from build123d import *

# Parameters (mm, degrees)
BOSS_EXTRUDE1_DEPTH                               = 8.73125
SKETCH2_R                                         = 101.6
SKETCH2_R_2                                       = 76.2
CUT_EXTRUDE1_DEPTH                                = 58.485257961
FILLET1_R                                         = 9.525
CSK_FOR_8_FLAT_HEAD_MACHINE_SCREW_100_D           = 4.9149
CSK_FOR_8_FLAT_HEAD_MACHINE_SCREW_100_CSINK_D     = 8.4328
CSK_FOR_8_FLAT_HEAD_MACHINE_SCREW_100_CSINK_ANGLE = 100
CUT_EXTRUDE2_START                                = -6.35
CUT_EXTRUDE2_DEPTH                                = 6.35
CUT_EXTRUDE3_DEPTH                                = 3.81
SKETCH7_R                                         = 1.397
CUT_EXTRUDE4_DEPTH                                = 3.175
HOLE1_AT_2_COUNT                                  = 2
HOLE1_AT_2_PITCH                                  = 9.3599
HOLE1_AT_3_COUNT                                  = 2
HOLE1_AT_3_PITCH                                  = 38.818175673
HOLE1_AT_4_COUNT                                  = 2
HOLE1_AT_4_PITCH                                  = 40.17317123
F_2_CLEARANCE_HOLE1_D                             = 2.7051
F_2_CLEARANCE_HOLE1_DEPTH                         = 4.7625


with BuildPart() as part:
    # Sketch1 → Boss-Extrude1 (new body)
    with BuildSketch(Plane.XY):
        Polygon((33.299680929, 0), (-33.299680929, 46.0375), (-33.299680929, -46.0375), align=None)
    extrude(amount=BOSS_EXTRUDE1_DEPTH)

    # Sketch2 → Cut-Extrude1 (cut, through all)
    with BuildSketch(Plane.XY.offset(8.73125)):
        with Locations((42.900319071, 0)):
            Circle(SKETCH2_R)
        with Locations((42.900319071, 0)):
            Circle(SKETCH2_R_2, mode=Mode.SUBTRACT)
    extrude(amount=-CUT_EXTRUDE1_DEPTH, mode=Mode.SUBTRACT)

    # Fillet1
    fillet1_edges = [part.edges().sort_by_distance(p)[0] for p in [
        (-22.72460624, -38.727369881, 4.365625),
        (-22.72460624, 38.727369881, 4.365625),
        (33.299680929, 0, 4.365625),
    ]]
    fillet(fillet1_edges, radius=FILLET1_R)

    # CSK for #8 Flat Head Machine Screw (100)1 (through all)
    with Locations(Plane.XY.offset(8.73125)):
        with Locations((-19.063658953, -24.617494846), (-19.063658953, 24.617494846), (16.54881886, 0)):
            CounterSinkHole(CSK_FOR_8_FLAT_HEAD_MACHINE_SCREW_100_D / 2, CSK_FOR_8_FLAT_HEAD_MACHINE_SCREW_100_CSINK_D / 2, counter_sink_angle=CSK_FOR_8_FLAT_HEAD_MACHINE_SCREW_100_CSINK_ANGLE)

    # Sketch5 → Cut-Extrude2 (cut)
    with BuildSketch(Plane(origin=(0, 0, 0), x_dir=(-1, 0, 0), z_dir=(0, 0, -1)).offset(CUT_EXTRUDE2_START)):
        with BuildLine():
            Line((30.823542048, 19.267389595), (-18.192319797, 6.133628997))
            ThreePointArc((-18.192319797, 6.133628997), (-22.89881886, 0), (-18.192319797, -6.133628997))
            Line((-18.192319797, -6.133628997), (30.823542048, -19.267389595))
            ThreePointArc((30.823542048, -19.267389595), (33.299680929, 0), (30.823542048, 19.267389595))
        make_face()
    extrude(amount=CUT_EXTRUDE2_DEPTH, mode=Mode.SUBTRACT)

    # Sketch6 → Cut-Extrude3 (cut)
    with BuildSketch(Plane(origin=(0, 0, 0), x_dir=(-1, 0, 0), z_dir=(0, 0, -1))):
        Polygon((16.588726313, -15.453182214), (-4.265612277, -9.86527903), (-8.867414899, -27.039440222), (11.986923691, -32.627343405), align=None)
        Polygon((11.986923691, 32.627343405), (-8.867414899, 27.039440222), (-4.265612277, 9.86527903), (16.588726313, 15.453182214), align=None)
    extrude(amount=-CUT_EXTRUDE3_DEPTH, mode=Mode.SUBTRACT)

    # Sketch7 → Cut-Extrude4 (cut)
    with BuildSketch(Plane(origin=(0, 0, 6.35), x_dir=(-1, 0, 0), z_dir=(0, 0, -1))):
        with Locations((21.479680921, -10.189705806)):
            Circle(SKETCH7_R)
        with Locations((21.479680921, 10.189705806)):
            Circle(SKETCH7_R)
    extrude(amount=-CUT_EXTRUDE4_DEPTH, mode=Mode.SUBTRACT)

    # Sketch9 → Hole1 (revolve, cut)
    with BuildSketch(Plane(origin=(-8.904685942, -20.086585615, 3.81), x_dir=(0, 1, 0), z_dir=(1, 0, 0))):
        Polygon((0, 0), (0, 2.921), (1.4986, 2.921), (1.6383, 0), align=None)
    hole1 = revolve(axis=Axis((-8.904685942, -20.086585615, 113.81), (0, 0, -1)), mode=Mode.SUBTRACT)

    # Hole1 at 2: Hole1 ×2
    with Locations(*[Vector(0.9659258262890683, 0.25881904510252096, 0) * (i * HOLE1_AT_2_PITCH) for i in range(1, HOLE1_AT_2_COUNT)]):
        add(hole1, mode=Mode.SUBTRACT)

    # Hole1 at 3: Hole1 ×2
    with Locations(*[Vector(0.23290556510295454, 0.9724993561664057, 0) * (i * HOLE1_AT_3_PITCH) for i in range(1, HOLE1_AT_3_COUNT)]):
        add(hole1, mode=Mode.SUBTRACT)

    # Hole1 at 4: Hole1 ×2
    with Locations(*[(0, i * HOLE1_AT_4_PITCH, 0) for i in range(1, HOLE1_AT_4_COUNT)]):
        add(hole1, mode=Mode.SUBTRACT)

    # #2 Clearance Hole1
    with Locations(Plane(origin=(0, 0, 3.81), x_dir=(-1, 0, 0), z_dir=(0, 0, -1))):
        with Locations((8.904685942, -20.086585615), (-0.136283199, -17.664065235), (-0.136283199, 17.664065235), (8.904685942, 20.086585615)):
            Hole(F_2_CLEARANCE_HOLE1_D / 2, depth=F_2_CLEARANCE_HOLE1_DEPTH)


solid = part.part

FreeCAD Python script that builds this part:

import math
import FreeCAD as App
import Part
import Sketcher
Q = App.Units.Quantity


def edges_at(feature, points):
    """Names of the edges that pass closest to the given points."""
    edges = feature.Shape.Edges
    near = lambda p: min(range(len(edges)), key=lambda i: edges[i].distToShape(Part.Vertex(*p))[0])
    return sorted({f"Edge{near(p) + 1}" for p in points})

doc = App.newDocument("Part")
body = doc.addObject("PartDesign::Body", "Body")

# Sketch on XY plane
sketch1 = body.newObject("Sketcher::SketchObject", "Sketch")
sketch1.AttachmentSupport = (doc.getObject("XY_Plane"), [""])
sketch1.MapMode = "FlatFace"
sketch1.addGeometry(Part.LineSegment(App.Vector(33, 0, 0), App.Vector(-33, 46, 0)), False)
sketch1.addGeometry(Part.LineSegment(App.Vector(-33, 46, 0), App.Vector(-33, -46, 0)), False)
sketch1.addGeometry(Part.LineSegment(App.Vector(-33, -46, 0), App.Vector(33, 0, 0)), False)
sketch1.addConstraint(Sketcher.Constraint("Coincident", 0, 2, 1, 1))
sketch1.addConstraint(Sketcher.Constraint("Coincident", 1, 2, 2, 1))
sketch1.addConstraint(Sketcher.Constraint("Coincident", 2, 2, 0, 1))
sketch1.addConstraint(Sketcher.Constraint("Vertical", 1))
sketch1.addConstraint(Sketcher.Constraint("PointOnObject", 2, 2, -1))
sketch1.addConstraint(Sketcher.Constraint("Equal", 0, 2))
sketch1.addConstraint(Sketcher.Constraint("DistanceY", 1, 2, 1, 1, Q("3.625 in")))
sketch1.addConstraint(Sketcher.Constraint("Distance", 0, Q("3.1875 in")))
sketch1.addConstraint(Sketcher.Constraint("DistanceX", 0, 2, -1, 1, Q("33.299681 mm")))
pad1 = body.newObject("PartDesign::Pad", "Pad")
pad1.Profile = sketch1
pad1.Length = Q("0.34375 in")

# Sketch on XY plane
sketch2 = body.newObject("Sketcher::SketchObject", "Sketch001")
sketch2.AttachmentSupport = (doc.getObject("XY_Plane"), [""])
sketch2.MapMode = "FlatFace"
sketch2.AttachmentOffset = App.Placement(App.Vector(0, 0, 0.34375 * 25.4), App.Rotation())
sketch2.addGeometry(Part.Circle(App.Vector(43, 0, 0), App.Vector(0, 0, 1), 102), False)
sketch2.addGeometry(Part.Circle(App.Vector(43, 0, 0), App.Vector(0, 0, 1), 76), False)
sketch2.addConstraint(Sketcher.Constraint("Coincident", 1, 3, 0, 3))
sketch2.addConstraint(Sketcher.Constraint("PointOnObject", 0, 3, -1))
sketch2.addConstraint(Sketcher.Constraint("Diameter", 0, Q("8 in")))
sketch2.addConstraint(Sketcher.Constraint("Diameter", 1, Q("6 in")))
sketch2.addConstraint(Sketcher.Constraint("DistanceX", -1, 1, 0, 3, Q("42.900319 mm")))
pocket1 = body.newObject("PartDesign::Pocket", "Pocket")
pocket1.Profile = sketch2
pocket1.Type = "ThroughAll"
doc.recompute()

fillet = body.newObject("PartDesign::Fillet", "Fillet")
fillet.Base = (pocket1, edges_at(pocket1, [(-22.725, -38.727, 4.366), (-22.725, 38.727, 4.366), (33.3, 0, 4.366)]))
fillet.Radius = Q("0.375 in")

# Sketch on XY plane
sketch3 = body.newObject("Sketcher::SketchObject", "Sketch002")
sketch3.AttachmentSupport = (doc.getObject("XY_Plane"), [""])
sketch3.MapMode = "FlatFace"
sketch3.AttachmentOffset = App.Placement(App.Vector(0, 0, 0.34375 * 25.4), App.Rotation())
sketch3.addGeometry(Part.Circle(App.Vector(-19.1, -24.6, 0), App.Vector(0, 0, 1), 2.5), False)
sketch3.addGeometry(Part.Circle(App.Vector(-19.1, 24.6, 0), App.Vector(0, 0, 1), 2.5), False)
sketch3.addGeometry(Part.Circle(App.Vector(16.5, 0, 0), App.Vector(0, 0, 1), 2.5), False)
sketch3.addConstraint(Sketcher.Constraint("Equal", 0, 1))
sketch3.addConstraint(Sketcher.Constraint("Equal", 1, 2))
sketch3.addConstraint(Sketcher.Constraint("Symmetric", 0, 3, 1, 3, -1))
sketch3.addConstraint(Sketcher.Constraint("PointOnObject", 2, 3, -1))
sketch3.addConstraint(Sketcher.Constraint("Diameter", 0, Q("0.1935 in")))
sketch3.addConstraint(Sketcher.Constraint("DistanceX", 0, 3, -1, 1, Q("19.063659 mm")))
sketch3.addConstraint(Sketcher.Constraint("DistanceX", -1, 1, 2, 3, Q("16.548819 mm")))
sketch3.addConstraint(Sketcher.Constraint("DistanceY", 0, 3, 1, 3, Q("49.23499 mm")))
doc.recompute()
hole = body.newObject("PartDesign::Hole", "Hole")
hole.Profile = sketch3
hole.ThreadType = "None"
hole.Diameter = Q("0.1935 in")
hole.DepthType = "ThroughAll"
hole.HoleCutType = "Countersink"
hole.HoleCutDiameter = Q("0.332 in")
hole.HoleCutCountersinkAngle = 100

# Sketch on XY plane
sketch4 = body.newObject("Sketcher::SketchObject", "Sketch003")
sketch4.AttachmentSupport = (doc.getObject("XY_Plane"), [""])
sketch4.MapMode = "FlatFace"
sketch4.AttachmentOffset = App.Placement(App.Vector(0, 0, 0.25 * 25.4), App.Rotation())
sketch4.addGeometry(Part.LineSegment(App.Vector(-31, 19, 0), App.Vector(18, 6, 0)), False)
sketch4.addGeometry(Part.ArcOfCircle(Part.Circle(App.Vector(17, 0, 0), App.Vector(0, 0, 1), 6), math.radians(-75), math.radians(75)), False)
sketch4.addGeometry(Part.LineSegment(App.Vector(18, -6, 0), App.Vector(-31, -19, 0)), False)
sketch4.addGeometry(Part.ArcOfCircle(Part.Circle(App.Vector(43, 0, 0), App.Vector(0, 0, 1), 76), math.radians(165), math.radians(195)), False)
sketch4.addConstraint(Sketcher.Constraint("Tangent", 0, 2, 1, 2))
sketch4.addConstraint(Sketcher.Constraint("Tangent", 1, 1, 2, 1))
sketch4.addConstraint(Sketcher.Constraint("Coincident", 2, 2, 3, 2))
sketch4.addConstraint(Sketcher.Constraint("Coincident", 3, 1, 0, 1))
sketch4.addConstraint(Sketcher.Constraint("Symmetric", 0, 2, 1, 1, -1))
sketch4.addConstraint(Sketcher.Constraint("PointOnObject", 3, 3, -1))
sketch4.addConstraint(Sketcher.Constraint("Radius", 3, Q("3 in")))
sketch4.addConstraint(Sketcher.Constraint("Radius", 1, Q("0.25 in")))
sketch4.addConstraint(Sketcher.Constraint("Angle", 0, Q("-15 deg")))
sketch4.addConstraint(Sketcher.Constraint("DistanceX", 1, 3, 3, 3, Q("26.3515 mm")))
sketch4.addConstraint(Sketcher.Constraint("DistanceX", -1, 1, 1, 3, Q("16.548819 mm")))
pocket2 = body.newObject("PartDesign::Pocket", "Pocket001")
pocket2.Profile = sketch4
pocket2.Length = Q("0.25 in")

# Sketch on XY plane
sketch5 = body.newObject("Sketcher::SketchObject", "Sketch004")
sketch5.AttachmentSupport = (doc.getObject("XY_Plane"), [""])
sketch5.MapMode = "FlatFace"
sketch5.addGeometry(Part.LineSegment(App.Vector(-17, -15, 0), App.Vector(4, -10, 0)), False)
sketch5.addGeometry(Part.LineSegment(App.Vector(4, -10, 0), App.Vector(9, -27, 0)), False)
sketch5.addGeometry(Part.LineSegment(App.Vector(9, -27, 0), App.Vector(-12, -33, 0)), False)
sketch5.addGeometry(Part.LineSegment(App.Vector(-12, -33, 0), App.Vector(-17, -15, 0)), False)
sketch5.addGeometry(Part.LineSegment(App.Vector(-12, 33, 0), App.Vector(9, 27, 0)), False)
sketch5.addGeometry(Part.LineSegment(App.Vector(9, 27, 0), App.Vector(4, 10, 0)), False)
sketch5.addGeometry(Part.LineSegment(App.Vector(4, 10, 0), App.Vector(-17, 15, 0)), False)
sketch5.addGeometry(Part.LineSegment(App.Vector(-17, 15, 0), App.Vector(-12, 33, 0)), False)
sketch5.addConstraint(Sketcher.Constraint("Coincident", 0, 2, 1, 1))
sketch5.addConstraint(Sketcher.Constraint("Coincident", 1, 2, 2, 1))
sketch5.addConstraint(Sketcher.Constraint("Coincident", 2, 2, 3, 1))
sketch5.addConstraint(Sketcher.Constraint("Coincident", 3, 2, 0, 1))
sketch5.addConstraint(Sketcher.Constraint("Coincident", 4, 2, 5, 1))
sketch5.addConstraint(Sketcher.Constraint("Coincident", 5, 2, 6, 1))
sketch5.addConstraint(Sketcher.Constraint("Coincident", 6, 2, 7, 1))
sketch5.addConstraint(Sketcher.Constraint("Coincident", 7, 2, 4, 1))
sketch5.addConstraint(Sketcher.Constraint("Symmetric", 1, 2, 4, 2, -1))
sketch5.addConstraint(Sketcher.Constraint("Symmetric", 0, 2, 5, 2, -1))
sketch5.addConstraint(Sketcher.Constraint("Symmetric", 3, 2, 6, 2, -1))
sketch5.addConstraint(Sketcher.Constraint("Symmetric", 2, 2, 7, 2, -1))
sketch5.addConstraint(Sketcher.Constraint("Perpendicular", 0, 1))
sketch5.addConstraint(Sketcher.Constraint("Perpendicular", 1, 2))
sketch5.addConstraint(Sketcher.Constraint("Perpendicular", 2, 3))
sketch5.addConstraint(Sketcher.Constraint("Angle", 0, Q("15 deg")))
sketch5.addConstraint(Sketcher.Constraint("Distance", 1, Q("0.7 in")))
sketch5.addConstraint(Sketcher.Constraint("Distance", 0, Q("0.85 in")))
sketch5.addConstraint(Sketcher.Constraint("DistanceY", 0, 2, -1, 1, Q("9.865279 mm")))
sketch5.addConstraint(Sketcher.Constraint("DistanceX", -1, 1, 0, 2, Q("4.265612 mm")))
pocket3 = body.newObject("PartDesign::Pocket", "Pocket002")
pocket3.Profile = sketch5
pocket3.Length = Q("0.15 in")
pocket3.Reversed = True

# Sketch on XY plane
sketch6 = body.newObject("Sketcher::SketchObject", "Sketch005")
sketch6.AttachmentSupport = (doc.getObject("XY_Plane"), [""])
sketch6.MapMode = "FlatFace"
sketch6.AttachmentOffset = App.Placement(App.Vector(0, 0, 0.25 * 25.4), App.Rotation())
sketch6.addGeometry(Part.Circle(App.Vector(-21.5, -10.2, 0), App.Vector(0, 0, 1), 1.4), False)
sketch6.addGeometry(Part.Circle(App.Vector(-21.5, 10.2, 0), App.Vector(0, 0, 1), 1.4), False)
sketch6.addConstraint(Sketcher.Constraint("Equal", 0, 1))
sketch6.addConstraint(Sketcher.Constraint("Symmetric", 0, 3, 1, 3, -1))
sketch6.addConstraint(Sketcher.Constraint("Diameter", 0, Q("0.11 in")))
sketch6.addConstraint(Sketcher.Constraint("DistanceX", 0, 3, -1, 1, Q("21.479681 mm")))
sketch6.addConstraint(Sketcher.Constraint("DistanceY", 0, 3, 1, 3, Q("20.379412 mm")))
pocket4 = body.newObject("PartDesign::Pocket", "Pocket003")
pocket4.Profile = sketch6
pocket4.Length = Q("0.125 in")
pocket4.Reversed = True

# Sketch on YZ plane
sketch7 = body.newObject("Sketcher::SketchObject", "Sketch006")
sketch7.AttachmentSupport = (doc.getObject("YZ_Plane"), [""])
sketch7.MapMode = "FlatFace"
sketch7.AttachmentOffset = App.Placement(App.Vector(0, 0, -8.904686), App.Rotation())
sketch7.addGeometry(Part.LineSegment(App.Vector(-20.1, 6.7, 0), App.Vector(-20.1, 3.8, 0)), False)
sketch7.addGeometry(Part.LineSegment(App.Vector(-20.1, 3.8, 0), App.Vector(-18.4, 3.8, 0)), False)
sketch7.addGeometry(Part.LineSegment(App.Vector(-18.4, 3.8, 0), App.Vector(-18.6, 6.7, 0)), False)
sketch7.addGeometry(Part.LineSegment(App.Vector(-18.6, 6.7, 0), App.Vector(-20.1, 6.7, 0)), False)
sketch7.addGeometry(Part.LineSegment(App.Vector(-20.1, 6.7, 0), App.Vector(-20.1, 3.8, 0)), True)  # axis
sketch7.addConstraint(Sketcher.Constraint("Coincident", 0, 2, 1, 1))
sketch7.addConstraint(Sketcher.Constraint("Coincident", 1, 2, 2, 1))
sketch7.addConstraint(Sketcher.Constraint("Coincident", 2, 2, 3, 1))
sketch7.addConstraint(Sketcher.Constraint("Coincident", 3, 2, 0, 1))
sketch7.addConstraint(Sketcher.Constraint("Vertical", 0))
sketch7.addConstraint(Sketcher.Constraint("Horizontal", 1))
sketch7.addConstraint(Sketcher.Constraint("Horizontal", 3))
sketch7.addConstraint(Sketcher.Constraint("Vertical", 4))
sketch7.addConstraint(Sketcher.Constraint("Coincident", 4, 1, 3, 2))
sketch7.addConstraint(Sketcher.Constraint("Horizontal", 1, 2, 4, 2))
sketch7.addConstraint(Sketcher.Constraint("DistanceX", 3, 2, 3, 1, Q("0.059 in")))
sketch7.addConstraint(Sketcher.Constraint("DistanceY", 0, 2, 0, 1, Q("0.115 in")))
sketch7.addConstraint(Sketcher.Constraint("DistanceY", -1, 1, 0, 2, Q("0.15 in")))
sketch7.addConstraint(Sketcher.Constraint("DistanceX", 1, 1, 1, 2, Q("0.0645 in")))
sketch7.addConstraint(Sketcher.Constraint("DistanceX", 0, 2, -1, 1, Q("20.086586 mm")))
groove = body.newObject("PartDesign::Groove", "Groove")
groove.Profile = sketch7
groove.ReferenceAxis = (sketch7, ["Axis0"])
groove.Angle = 360
doc.recompute()

datumline = body.newObject("PartDesign::Line", "DatumLine")
datumline.Placement = App.Placement(App.Vector(0, 0, 0), App.Rotation(App.Vector(0, 0, 1), App.Vector(0.965925826, 0.258819045, 0)))
linearpattern = body.newObject("PartDesign::LinearPattern", "LinearPattern")
linearpattern.Originals = [groove]
linearpattern.Direction = (datumline, [""])
linearpattern.Mode = "offset"
linearpattern.Offset = Q("0.3685 in")
linearpattern.Occurrences = 2
body.Tip = linearpattern
doc.recompute()

datumline2 = body.newObject("PartDesign::Line", "DatumLine001")
datumline2.Placement = App.Placement(App.Vector(0, 0, 0), App.Rotation(App.Vector(0, 0, 1), App.Vector(0.232905565, 0.972499356, 0)))
linearpattern2 = body.newObject("PartDesign::LinearPattern", "LinearPattern001")
linearpattern2.Originals = [groove]
linearpattern2.Direction = (datumline2, [""])
linearpattern2.Mode = "offset"
linearpattern2.Offset = 38.818176
linearpattern2.Occurrences = 2
body.Tip = linearpattern2
doc.recompute()

linearpattern3 = body.newObject("PartDesign::LinearPattern", "LinearPattern002")
linearpattern3.Originals = [groove]
linearpattern3.Direction = (doc.getObject("Y_Axis"), [""])
linearpattern3.Mode = "offset"
linearpattern3.Offset = 40.173171
linearpattern3.Occurrences = 2
body.Tip = linearpattern3

# Sketch on XY plane
sketch8 = body.newObject("Sketcher::SketchObject", "Sketch007")
sketch8.AttachmentSupport = (doc.getObject("XY_Plane"), [""])
sketch8.MapMode = "FlatFace"
sketch8.AttachmentOffset = App.Placement(App.Vector(0, 0, 0.15 * 25.4), App.Rotation())
sketch8.addGeometry(Part.Circle(App.Vector(-8.9, -20.1, 0), App.Vector(0, 0, 1), 1.4), False)
sketch8.addGeometry(Part.Circle(App.Vector(0.1, -17.7, 0), App.Vector(0, 0, 1), 1.4), False)
sketch8.addGeometry(Part.Circle(App.Vector(0.1, 17.7, 0), App.Vector(0, 0, 1), 1.4), False)
sketch8.addGeometry(Part.Circle(App.Vector(-8.9, 20.1, 0), App.Vector(0, 0, 1), 1.4), False)
sketch8.addConstraint(Sketcher.Constraint("Equal", 0, 1))
sketch8.addConstraint(Sketcher.Constraint("Equal", 1, 2))
sketch8.addConstraint(Sketcher.Constraint("Equal", 2, 3))
sketch8.addConstraint(Sketcher.Constraint("Symmetric", 1, 3, 2, 3, -1))
sketch8.addConstraint(Sketcher.Constraint("Symmetric", 0, 3, 3, 3, -1))
sketch8.addConstraint(Sketcher.Constraint("Diameter", 0, Q("0.1065 in")))
sketch8.addConstraint(Sketcher.Constraint("DistanceX", 0, 3, 1, 3, Q("9.040969 mm")))
sketch8.addConstraint(Sketcher.Constraint("DistanceY", 0, 3, 1, 3, Q("2.42252 mm")))
sketch8.addConstraint(Sketcher.Constraint("DistanceY", 1, 3, 2, 3, Q("35.32813 mm")))
sketch8.addConstraint(Sketcher.Constraint("DistanceX", 0, 3, -1, 1, Q("8.904686 mm")))
doc.recompute()
hole2 = body.newObject("PartDesign::Hole", "Hole001")
hole2.Profile = sketch8
hole2.ThreadType = "None"
hole2.Diameter = Q("0.1065 in")
hole2.DepthType = "Dimension"
hole2.Depth = Q("0.1875 in")
hole2.DrillPoint = "Flat"
hole2.Reversed = True

doc.recompute()
